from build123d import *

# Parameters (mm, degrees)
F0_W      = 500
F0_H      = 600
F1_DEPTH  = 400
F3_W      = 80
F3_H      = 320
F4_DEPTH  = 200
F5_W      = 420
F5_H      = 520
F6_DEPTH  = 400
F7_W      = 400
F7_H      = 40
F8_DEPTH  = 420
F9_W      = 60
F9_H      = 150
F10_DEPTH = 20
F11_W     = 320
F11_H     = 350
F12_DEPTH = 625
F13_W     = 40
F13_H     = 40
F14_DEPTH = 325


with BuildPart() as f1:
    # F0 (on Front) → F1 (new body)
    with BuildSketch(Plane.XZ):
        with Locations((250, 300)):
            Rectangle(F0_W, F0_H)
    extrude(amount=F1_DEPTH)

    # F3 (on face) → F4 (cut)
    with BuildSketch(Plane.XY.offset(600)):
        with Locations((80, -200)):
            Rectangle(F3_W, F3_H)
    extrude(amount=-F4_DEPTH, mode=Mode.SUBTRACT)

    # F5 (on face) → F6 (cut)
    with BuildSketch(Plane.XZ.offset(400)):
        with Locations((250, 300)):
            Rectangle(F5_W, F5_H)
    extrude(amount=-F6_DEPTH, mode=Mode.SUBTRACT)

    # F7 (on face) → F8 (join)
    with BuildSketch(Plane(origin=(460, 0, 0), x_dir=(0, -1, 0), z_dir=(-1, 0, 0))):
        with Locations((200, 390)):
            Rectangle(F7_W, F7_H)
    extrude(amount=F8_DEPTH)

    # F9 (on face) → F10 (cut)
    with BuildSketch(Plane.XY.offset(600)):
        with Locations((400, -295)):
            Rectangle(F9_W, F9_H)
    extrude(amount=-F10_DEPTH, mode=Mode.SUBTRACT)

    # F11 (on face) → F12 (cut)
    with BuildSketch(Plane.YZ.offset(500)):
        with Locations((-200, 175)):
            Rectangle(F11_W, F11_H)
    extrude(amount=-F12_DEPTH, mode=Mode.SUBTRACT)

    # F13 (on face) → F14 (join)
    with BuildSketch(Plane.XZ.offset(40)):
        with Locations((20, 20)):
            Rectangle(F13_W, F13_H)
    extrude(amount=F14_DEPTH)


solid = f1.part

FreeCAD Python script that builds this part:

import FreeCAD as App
import Part
import Sketcher

V = App.Vector

doc = App.newDocument("Part")
params = doc.addObject("Spreadsheet::Sheet", "Params")
for row, (alias, value) in enumerate([
    ("sketch1_width", "500 mm"),
    ("sketch1_height", "600 mm"),
    ("pad1_length", "400 mm"),
    ("sketch2_width", "80 mm"),
    ("sketch2_height", "320 mm"),
    ("pocket1_length", "200 mm"),
    ("sketch3_width", "420 mm"),
    ("sketch3_height", "520 mm"),
    ("pocket2_length", "400 mm"),
    ("sketch4_width", "400 mm"),
    ("sketch4_height", "40 mm"),
    ("pad2_length", "420 mm"),
    ("sketch5_width", "60 mm"),
    ("sketch5_height", "150 mm"),
    ("pocket3_length", "20 mm"),
    ("sketch6_width", "320 mm"),
    ("sketch6_height", "350 mm"),
    ("pocket4_length", "625 mm"),
    ("sketch7_width", "40 mm"),
    ("pad3_length", "325 mm"),
], start=1):
    params.set(f"A{row}", alias)
    params.set(f"B{row}", "=" + value)
    params.setAlias(f"B{row}", alias)

body = doc.addObject("PartDesign::Body", "Body")

# Sketch on XZ plane
sketch1 = doc.addObject("Sketcher::SketchObject", "Sketch")
body.addObject(sketch1)
sketch1.AttachmentSupport = (doc.XZ_Plane, [""])
sketch1.MapMode = "FlatFace"
sketch1.addGeometry(Part.LineSegment(V(0, 600, 0), V(0, 0, 0)), False)
sketch1.addGeometry(Part.LineSegment(V(0, 0, 0), V(500, 0, 0)), False)
sketch1.addGeometry(Part.LineSegment(V(500, 0, 0), V(500, 600, 0)), False)
sketch1.addGeometry(Part.LineSegment(V(500, 600, 0), V(0, 600, 0)), False)
sketch1.addConstraint(Sketcher.Constraint("Coincident", 0, 2, 1, 1))
sketch1.addConstraint(Sketcher.Constraint("Coincident", 1, 2, 2, 1))
sketch1.addConstraint(Sketcher.Constraint("Coincident", 2, 2, 3, 1))
sketch1.addConstraint(Sketcher.Constraint("Coincident", 3, 2, 0, 1))
sketch1.addConstraint(Sketcher.Constraint("Vertical", 0))
sketch1.addConstraint(Sketcher.Constraint("Horizontal", 1))
sketch1.addConstraint(Sketcher.Constraint("Vertical", 2))
sketch1.addConstraint(Sketcher.Constraint("Horizontal", 3))
sketch1.addConstraint(Sketcher.Constraint("Coincident", 0, 2, -1, 1))
sketch1.addConstraint(Sketcher.Constraint("DistanceX", 1, 1, 1, 2, 500.0))
sketch1.addConstraint(Sketcher.Constraint("DistanceY", 0, 2, 0, 1, 600.0))
sketch1.setExpression("Constraints[9]", "Params.sketch1_width")
sketch1.setExpression("Constraints[10]", "Params.sketch1_height")
pad1 = doc.addObject("PartDesign::Pad", "Pad")
body.addObject(pad1)
pad1.Profile = sketch1
pad1.setExpression("Length", "Params.pad1_length")

# Sketch on XY plane
sketch2 = doc.addObject("Sketcher::SketchObject", "Sketch001")
body.addObject(sketch2)
sketch2.AttachmentSupport = (doc.XY_Plane, [""])
sketch2.MapMode = "FlatFace"
sketch2.AttachmentOffset = App.Placement(V(0, 0, 600), App.Rotation())
sketch2.addGeometry(Part.LineSegment(V(40, -40, 0), V(40, -360, 0)), False)
sketch2.addGeometry(Part.LineSegment(V(40, -360, 0), V(120, -360, 0)), False)
sketch2.addGeometry(Part.LineSegment(V(120, -360, 0), V(120, -40, 0)), False)
sketch2.addGeometry(Part.LineSegment(V(120, -40, 0), V(40, -40, 0)), False)
sketch2.addConstraint(Sketcher.Constraint("Coincident", 0, 2, 1, 1))
sketch2.addConstraint(Sketcher.Constraint("Coincident", 1, 2, 2, 1))
sketch2.addConstraint(Sketcher.Constraint("Coincident", 2, 2, 3, 1))
sketch2.addConstraint(Sketcher.Constraint("Coincident", 3, 2, 0, 1))
sketch2.addConstraint(Sketcher.Constraint("Vertical", 0))
sketch2.addConstraint(Sketcher.Constraint("Horizontal", 1))
sketch2.addConstraint(Sketcher.Constraint("Vertical", 2))
sketch2.addConstraint(Sketcher.Constraint("Horizontal", 3))
sketch2.addConstraint(Sketcher.Constraint("DistanceX", 1, 1, 1, 2, 80.0))
sketch2.addConstraint(Sketcher.Constraint("DistanceY", 0, 2, 0, 1, 320.0))
sketch2.addConstraint(Sketcher.Constraint("DistanceX", -1, 1, 0, 2, 40.0))
sketch2.addConstraint(Sketcher.Constraint("DistanceY", 0, 2, -1, 1, 360.0))
sketch2.setExpression("Constraints[8]", "Params.sketch2_width")
sketch2.setExpression("Constraints[9]", "Params.sketch2_height")
pocket1 = doc.addObject("PartDesign::Pocket", "Pocket")
body.addObject(pocket1)
pocket1.Profile = sketch2
pocket1.setExpression("Length", "Params.pocket1_length")

# Sketch on XZ plane
sketch3 = doc.addObject("Sketcher::SketchObject", "Sketch002")
body.addObject(sketch3)
sketch3.AttachmentSupport = (doc.XZ_Plane, [""])
sketch3.MapMode = "FlatFace"
sketch3.AttachmentOffset = App.Placement(V(0, 0, 400), App.Rotation())
sketch3.addGeometry(Part.LineSegment(V(40, 560, 0), V(40, 40, 0)), False)
sketch3.addGeometry(Part.LineSegment(V(40, 40, 0), V(460, 40, 0)), False)
sketch3.addGeometry(Part.LineSegment(V(460, 40, 0), V(460, 560, 0)), False)
sketch3.addGeometry(Part.LineSegment(V(460, 560, 0), V(40, 560, 0)), False)
sketch3.addConstraint(Sketcher.Constraint("Coincident", 0, 2, 1, 1))
sketch3.addConstraint(Sketcher.Constraint("Coincident", 1, 2, 2, 1))
sketch3.addConstraint(Sketcher.Constraint("Coincident", 2, 2, 3, 1))
sketch3.addConstraint(Sketcher.Constraint("Coincident", 3, 2, 0, 1))
sketch3.addConstraint(Sketcher.Constraint("Vertical", 0))
sketch3.addConstraint(Sketcher.Constraint("Horizontal", 1))
sketch3.addConstraint(Sketcher.Constraint("Vertical", 2))
sketch3.addConstraint(Sketcher.Constraint("Horizontal", 3))
sketch3.addConstraint(Sketcher.Constraint("DistanceX", 1, 1, 1, 2, 420.0))
sketch3.addConstraint(Sketcher.Constraint("DistanceY", 0, 2, 0, 1, 520.0))
sketch3.addConstraint(Sketcher.Constraint("DistanceX", -1, 1, 0, 2, 40.0))
sketch3.addConstraint(Sketcher.Constraint("DistanceY", -1, 1, 0, 2, 40.0))
sketch3.setExpression("Constraints[8]", "Params.sketch3_width")
sketch3.setExpression("Constraints[9]", "Params.sketch3_height")
pocket2 = doc.addObject("PartDesign::Pocket", "Pocket001")
body.addObject(pocket2)
pocket2.Profile = sketch3
pocket2.setExpression("Length", "Params.pocket2_length")

# Sketch on YZ plane
sketch4 = doc.addObject("Sketcher::SketchObject", "Sketch003")
body.addObject(sketch4)
sketch4.AttachmentSupport = (doc.YZ_Plane, [""])
sketch4.MapMode = "FlatFace"
sketch4.AttachmentOffset = App.Placement(V(0, 0, 460), App.Rotation())
sketch4.addGeometry(Part.LineSegment(V(0, 410, 0), V(0, 370, 0)), False)
sketch4.addGeometry(Part.LineSegment(V(0, 370, 0), V(-400, 370, 0)), False)
sketch4.addGeometry(Part.LineSegment(V(-400, 370, 0), V(-400, 410, 0)), False)
sketch4.addGeometry(Part.LineSegment(V(-400, 410, 0), V(0, 410, 0)), False)
sketch4.addConstraint(Sketcher.Constraint("Coincident", 0, 2, 1, 1))
sketch4.addConstraint(Sketcher.Constraint("Coincident", 1, 2, 2, 1))
sketch4.addConstraint(Sketcher.Constraint("Coincident", 2, 2, 3, 1))
sketch4.addConstraint(Sketcher.Constraint("Coincident", 3, 2, 0, 1))
sketch4.addConstraint(Sketcher.Constraint("Vertical", 0))
sketch4.addConstraint(Sketcher.Constraint("Horizontal", 1))
sketch4.addConstraint(Sketcher.Constraint("Vertical", 2))
sketch4.addConstraint(Sketcher.Constraint("Horizontal", 3))
sketch4.addConstraint(Sketcher.Constraint("PointOnObject", 0, 2, -2))
sketch4.addConstraint(Sketcher.Constraint("DistanceX", 1, 2, 1, 1, 400.0))
sketch4.addConstraint(Sketcher.Constraint("DistanceY", 0, 2, 0, 1, 40.0))
sketch4.addConstraint(Sketcher.Constraint("DistanceY", -1, 1, 0, 2, 370.0))
sketch4.setExpression("Constraints[9]", "Params.sketch4_width")
sketch4.setExpression("Constraints[10]", "Params.sketch4_height")
pad2 = doc.addObject("PartDesign::Pad", "Pad001")
body.addObject(pad2)
pad2.Profile = sketch4
pad2.setExpression("Length", "Params.pad2_length")
pad2.Reversed = True

# Sketch on XY plane
sketch5 = doc.addObject("Sketcher::SketchObject", "Sketch004")
body.addObject(sketch5)
sketch5.AttachmentSupport = (doc.XY_Plane, [""])
sketch5.MapMode = "FlatFace"
sketch5.AttachmentOffset = App.Placement(V(0, 0, 600), App.Rotation())
sketch5.addGeometry(Part.LineSegment(V(370, -220, 0), V(370, -370, 0)), False)
sketch5.addGeometry(Part.LineSegment(V(370, -370, 0), V(430, -370, 0)), False)
sketch5.addGeometry(Part.LineSegment(V(430, -370, 0), V(430, -220, 0)), False)
sketch5.addGeometry(Part.LineSegment(V(430, -220, 0), V(370, -220, 0)), False)
sketch5.addConstraint(Sketcher.Constraint("Coincident", 0, 2, 1, 1))
sketch5.addConstraint(Sketcher.Constraint("Coincident", 1, 2, 2, 1))
sketch5.addConstraint(Sketcher.Constraint("Coincident", 2, 2, 3, 1))
sketch5.addConstraint(Sketcher.Constraint("Coincident", 3, 2, 0, 1))
sketch5.addConstraint(Sketcher.Constraint("Vertical", 0))
sketch5.addConstraint(Sketcher.Constraint("Horizontal", 1))
sketch5.addConstraint(Sketcher.Constraint("Vertical", 2))
sketch5.addConstraint(Sketcher.Constraint("Horizontal", 3))
sketch5.addConstraint(Sketcher.Constraint("DistanceX", 1, 1, 1, 2, 60.0))
sketch5.addConstraint(Sketcher.Constraint("DistanceY", 0, 2, 0, 1, 150.0))
sketch5.addConstraint(Sketcher.Constraint("DistanceX", -1, 1, 0, 2, 370.0))
sketch5.addConstraint(Sketcher.Constraint("DistanceY", 0, 2, -1, 1, 370.0))
sketch5.setExpression("Constraints[8]", "Params.sketch5_width")
sketch5.setExpression("Constraints[9]", "Params.sketch5_height")
pocket3 = doc.addObject("PartDesign::Pocket", "Pocket002")
body.addObject(pocket3)
pocket3.Profile = sketch5
pocket3.setExpression("Length", "Params.pocket3_length")

# Sketch on YZ plane
sketch6 = doc.addObject("Sketcher::SketchObject", "Sketch005")
body.addObject(sketch6)
sketch6.AttachmentSupport = (doc.YZ_Plane, [""])
sketch6.MapMode = "FlatFace"
sketch6.AttachmentOffset = App.Placement(V(0, 0, 500), App.Rotation())
sketch6.addGeometry(Part.LineSegment(V(-360, 350, 0), V(-360, 0, 0)), False)
sketch6.addGeometry(Part.LineSegment(V(-360, 0, 0), V(-40, 0, 0)), False)
sketch6.addGeometry(Part.LineSegment(V(-40, 0, 0), V(-40, 350, 0)), False)
sketch6.addGeometry(Part.LineSegment(V(-40, 350, 0), V(-360, 350, 0)), False)
sketch6.addConstraint(Sketcher.Constraint("Coincident", 0, 2, 1, 1))
sketch6.addConstraint(Sketcher.Constraint("Coincident", 1, 2, 2, 1))
sketch6.addConstraint(Sketcher.Constraint("Coincident", 2, 2, 3, 1))
sketch6.addConstraint(Sketcher.Constraint("Coincident", 3, 2, 0, 1))
sketch6.addConstraint(Sketcher.Constraint("Vertical", 0))
sketch6.addConstraint(Sketcher.Constraint("Horizontal", 1))
sketch6.addConstraint(Sketcher.Constraint("Vertical", 2))
sketch6.addConstraint(Sketcher.Constraint("Horizontal", 3))
sketch6.addConstraint(Sketcher.Constraint("PointOnObject", 0, 2, -1))
sketch6.addConstraint(Sketcher.Constraint("DistanceX", 1, 1, 1, 2, 320.0))
sketch6.addConstraint(Sketcher.Constraint("DistanceY", 0, 2, 0, 1, 350.0))
sketch6.addConstraint(Sketcher.Constraint("DistanceX", 0, 2, -1, 1, 360.0))
sketch6.setExpression("Constraints[9]", "Params.sketch6_width")
sketch6.setExpression("Constraints[10]", "Params.sketch6_height")
pocket4 = doc.addObject("PartDesign::Pocket", "Pocket003")
body.addObject(pocket4)
pocket4.Profile = sketch6
pocket4.setExpression("Length", "Params.pocket4_length")

# Sketch on XZ plane
sketch7 = doc.addObject("Sketcher::SketchObject", "Sketch006")
body.addObject(sketch7)
sketch7.AttachmentSupport = (doc.XZ_Plane, [""])
sketch7.MapMode = "FlatFace"
sketch7.AttachmentOffset = App.Placement(V(0, 0, 40), App.Rotation())
sketch7.addGeometry(Part.LineSegment(V(0, 40, 0), V(0, 0, 0)), False)
sketch7.addGeometry(Part.LineSegment(V(0, 0, 0), V(40, 0, 0)), False)
sketch7.addGeometry(Part.LineSegment(V(40, 0, 0), V(40, 40, 0)), False)
sketch7.addGeometry(Part.LineSegment(V(40, 40, 0), V(0, 40, 0)), False)
sketch7.addConstraint(Sketcher.Constraint("Coincident", 0, 2, 1, 1))
sketch7.addConstraint(Sketcher.Constraint("Coincident", 1, 2, 2, 1))
sketch7.addConstraint(Sketcher.Constraint("Coincident", 2, 2, 3, 1))
sketch7.addConstraint(Sketcher.Constraint("Coincident", 3, 2, 0, 1))
sketch7.addConstraint(Sketcher.Constraint("Vertical", 0))
sketch7.addConstraint(Sketcher.Constraint("Horizontal", 1))
sketch7.addConstraint(Sketcher.Constraint("Vertical", 2))
sketch7.addConstraint(Sketcher.Constraint("Horizontal", 3))
sketch7.addConstraint(Sketcher.Constraint("Coincident", 0, 2, -1, 1))
sketch7.addConstraint(Sketcher.Constraint("Equal", 3, 0))
sketch7.addConstraint(Sketcher.Constraint("DistanceX", 1, 1, 1, 2, 40.0))
sketch7.setExpression("Constraints[10]", "Params.sketch7_width")
pad3 = doc.addObject("PartDesign::Pad", "Pad002")
body.addObject(pad3)
pad3.Profile = sketch7
pad3.setExpression("Length", "Params.pad3_length")

doc.recompute()
